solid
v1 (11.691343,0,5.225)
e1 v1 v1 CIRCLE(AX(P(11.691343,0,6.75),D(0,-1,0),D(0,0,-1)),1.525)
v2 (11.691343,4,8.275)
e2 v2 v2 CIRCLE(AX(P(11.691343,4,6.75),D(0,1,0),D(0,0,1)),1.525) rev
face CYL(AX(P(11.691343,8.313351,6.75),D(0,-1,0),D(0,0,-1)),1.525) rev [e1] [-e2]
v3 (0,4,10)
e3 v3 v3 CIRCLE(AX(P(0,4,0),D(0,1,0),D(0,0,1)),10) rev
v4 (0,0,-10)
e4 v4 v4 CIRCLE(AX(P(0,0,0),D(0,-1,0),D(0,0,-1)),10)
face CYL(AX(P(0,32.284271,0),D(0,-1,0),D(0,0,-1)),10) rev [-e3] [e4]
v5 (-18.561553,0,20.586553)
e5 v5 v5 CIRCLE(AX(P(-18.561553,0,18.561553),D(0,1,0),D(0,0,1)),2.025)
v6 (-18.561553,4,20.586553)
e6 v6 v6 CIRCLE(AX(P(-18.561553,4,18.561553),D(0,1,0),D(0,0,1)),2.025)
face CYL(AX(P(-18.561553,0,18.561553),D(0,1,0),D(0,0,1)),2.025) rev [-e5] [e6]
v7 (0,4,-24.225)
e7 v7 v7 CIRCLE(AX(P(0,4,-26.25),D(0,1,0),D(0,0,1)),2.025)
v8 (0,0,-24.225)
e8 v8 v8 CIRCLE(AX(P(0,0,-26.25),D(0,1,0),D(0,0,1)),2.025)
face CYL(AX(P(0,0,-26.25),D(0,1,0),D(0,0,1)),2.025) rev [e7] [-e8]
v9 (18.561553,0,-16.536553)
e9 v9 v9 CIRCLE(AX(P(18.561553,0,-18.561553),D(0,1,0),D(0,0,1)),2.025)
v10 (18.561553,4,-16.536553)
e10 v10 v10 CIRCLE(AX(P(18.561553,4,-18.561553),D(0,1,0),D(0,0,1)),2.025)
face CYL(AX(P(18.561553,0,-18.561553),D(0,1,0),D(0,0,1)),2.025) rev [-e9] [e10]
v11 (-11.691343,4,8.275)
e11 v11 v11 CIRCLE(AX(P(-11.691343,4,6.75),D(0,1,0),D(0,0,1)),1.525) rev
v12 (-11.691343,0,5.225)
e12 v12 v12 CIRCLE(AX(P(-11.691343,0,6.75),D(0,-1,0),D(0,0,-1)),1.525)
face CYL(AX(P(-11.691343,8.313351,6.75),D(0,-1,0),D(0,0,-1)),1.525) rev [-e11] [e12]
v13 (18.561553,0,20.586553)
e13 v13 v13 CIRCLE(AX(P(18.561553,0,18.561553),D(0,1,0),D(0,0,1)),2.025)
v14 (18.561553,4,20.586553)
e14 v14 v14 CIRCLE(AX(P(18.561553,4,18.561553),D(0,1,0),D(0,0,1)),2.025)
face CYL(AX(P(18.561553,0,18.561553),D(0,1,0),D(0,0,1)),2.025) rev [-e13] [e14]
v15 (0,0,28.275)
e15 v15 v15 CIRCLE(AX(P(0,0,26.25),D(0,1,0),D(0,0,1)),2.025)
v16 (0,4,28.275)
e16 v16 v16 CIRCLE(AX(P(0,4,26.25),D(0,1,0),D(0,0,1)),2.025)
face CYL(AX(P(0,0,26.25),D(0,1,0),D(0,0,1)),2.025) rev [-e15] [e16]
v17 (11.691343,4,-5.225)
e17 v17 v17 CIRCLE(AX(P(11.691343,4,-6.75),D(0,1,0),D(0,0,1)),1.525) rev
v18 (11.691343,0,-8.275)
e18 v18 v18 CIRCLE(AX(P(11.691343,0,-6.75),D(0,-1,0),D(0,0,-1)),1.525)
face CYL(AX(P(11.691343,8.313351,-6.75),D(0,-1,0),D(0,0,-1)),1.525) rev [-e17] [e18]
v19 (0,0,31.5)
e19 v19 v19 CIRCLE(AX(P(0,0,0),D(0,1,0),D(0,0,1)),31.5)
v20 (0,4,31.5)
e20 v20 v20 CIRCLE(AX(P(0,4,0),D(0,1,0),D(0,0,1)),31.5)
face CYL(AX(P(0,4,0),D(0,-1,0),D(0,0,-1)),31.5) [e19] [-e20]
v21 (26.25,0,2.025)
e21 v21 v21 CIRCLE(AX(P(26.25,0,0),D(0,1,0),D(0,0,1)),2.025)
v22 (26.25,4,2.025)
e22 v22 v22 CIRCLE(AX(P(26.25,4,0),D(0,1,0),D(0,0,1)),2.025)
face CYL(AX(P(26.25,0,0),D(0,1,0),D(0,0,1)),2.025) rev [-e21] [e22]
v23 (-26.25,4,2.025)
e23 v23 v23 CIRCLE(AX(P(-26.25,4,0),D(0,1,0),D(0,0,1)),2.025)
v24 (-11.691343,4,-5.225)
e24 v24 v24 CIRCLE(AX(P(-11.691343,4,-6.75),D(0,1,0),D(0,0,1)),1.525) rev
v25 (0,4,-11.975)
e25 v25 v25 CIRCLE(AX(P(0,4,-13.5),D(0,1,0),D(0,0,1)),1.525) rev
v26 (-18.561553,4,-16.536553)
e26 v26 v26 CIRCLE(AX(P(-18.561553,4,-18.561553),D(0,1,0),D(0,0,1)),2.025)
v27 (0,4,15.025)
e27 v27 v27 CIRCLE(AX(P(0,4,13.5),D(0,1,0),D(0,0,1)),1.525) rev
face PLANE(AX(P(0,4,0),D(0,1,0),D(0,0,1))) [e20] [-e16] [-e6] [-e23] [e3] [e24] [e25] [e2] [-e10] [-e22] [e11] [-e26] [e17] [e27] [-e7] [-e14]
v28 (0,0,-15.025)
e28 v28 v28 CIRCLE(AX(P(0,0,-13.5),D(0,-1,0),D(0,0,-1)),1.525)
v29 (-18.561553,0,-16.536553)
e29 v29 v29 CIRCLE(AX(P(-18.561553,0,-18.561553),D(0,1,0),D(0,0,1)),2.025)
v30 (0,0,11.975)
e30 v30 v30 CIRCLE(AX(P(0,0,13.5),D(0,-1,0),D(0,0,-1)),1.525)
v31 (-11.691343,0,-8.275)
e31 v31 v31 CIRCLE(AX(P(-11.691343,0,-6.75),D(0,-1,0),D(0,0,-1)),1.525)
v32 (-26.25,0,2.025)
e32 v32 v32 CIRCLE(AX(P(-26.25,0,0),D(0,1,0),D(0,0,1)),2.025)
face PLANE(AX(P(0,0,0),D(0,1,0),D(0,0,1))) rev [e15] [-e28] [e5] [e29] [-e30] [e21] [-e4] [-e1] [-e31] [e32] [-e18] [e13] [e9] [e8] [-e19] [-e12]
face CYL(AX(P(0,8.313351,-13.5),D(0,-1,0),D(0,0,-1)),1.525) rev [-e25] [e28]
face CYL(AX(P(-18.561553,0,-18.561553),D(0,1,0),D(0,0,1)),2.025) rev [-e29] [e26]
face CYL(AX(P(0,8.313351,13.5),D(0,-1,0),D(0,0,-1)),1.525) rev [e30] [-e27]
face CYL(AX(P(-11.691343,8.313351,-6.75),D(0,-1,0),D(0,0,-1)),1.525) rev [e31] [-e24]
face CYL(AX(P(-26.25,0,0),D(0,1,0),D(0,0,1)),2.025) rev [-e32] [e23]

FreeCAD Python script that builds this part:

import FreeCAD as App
import Part
import Sketcher

doc = App.newDocument("Part")
params = doc.addObject("Spreadsheet::Sheet", "Params")
for row, (alias, value) in enumerate([
    ("sketch1_diameter", "63 mm"),
    ("sketch1_diameter2", "45 mm"),
    ("pad1_length", "4 mm"),
    ("sketch2_diameter", "4.05 mm"),
    ("sketch3_diameter", "45 mm"),
    ("pad2_length", "4 mm"),
    ("sketch4_diameter", "3.05 mm"),
    ("pocket2_length", "4 mm"),
    ("sketch5_diameter", "20 mm"),
    ("pocket3_length", "4 mm"),
], start=1):
    params.set(f"A{row}", alias)
    params.set(f"B{row}", "=" + value)
    params.setAlias(f"B{row}", alias)

body = doc.addObject("PartDesign::Body", "Body")

sketch1 = doc.addObject("Sketcher::SketchObject", "Sketch")
body.addObject(sketch1)
sketch1.AttachmentSupport = (doc.XZ_Plane, [""])
sketch1.MapMode = "FlatFace"
sketch1.addGeometry([
    Part.Circle(App.Vector(0, 0, 0), App.Vector(0, 0, 1), 32),
    Part.Circle(App.Vector(0, 0, 0), App.Vector(0, 0, 1), 22),
], False)
sketch1.addConstraint([
    Sketcher.Constraint("Coincident", 0, 3, -1, 1),
    Sketcher.Constraint("Coincident", 1, 3, -1, 1),
    Sketcher.Constraint("Diameter", 0, 63.0),
    Sketcher.Constraint("Diameter", 1, 45.0),
])
sketch1.setExpression("Constraints[2]", "Params.sketch1_diameter")
sketch1.setExpression("Constraints[3]", "Params.sketch1_diameter2")
pad1 = doc.addObject("PartDesign::Pad", "Pad")
body.addObject(pad1)
pad1.Profile = sketch1
pad1.setExpression("Length", "Params.pad1_length")
pad1.Reversed = True

sketch2 = doc.addObject("Sketcher::SketchObject", "Sketch001")
body.addObject(sketch2)
sketch2.AttachmentSupport = (doc.XZ_Plane, [""])
sketch2.MapMode = "FlatFace"
sketch2.AttachmentOffset = App.Placement(App.Vector(0, 0, -4), App.Rotation())
sketch2.addGeometry([
    Part.Circle(App.Vector(0, -26.2, 0), App.Vector(0, 0, 1), 2),
    Part.Circle(App.Vector(18.6, -18.6, 0), App.Vector(0, 0, 1), 2),
    Part.Circle(App.Vector(26.2, 0, 0), App.Vector(0, 0, 1), 2),
    Part.Circle(App.Vector(18.6, 18.6, 0), App.Vector(0, 0, 1), 2),
    Part.Circle(App.Vector(0, 26.2, 0), App.Vector(0, 0, 1), 2),
    Part.Circle(App.Vector(-18.6, 18.6, 0), App.Vector(0, 0, 1), 2),
    Part.Circle(App.Vector(-26.2, 0, 0), App.Vector(0, 0, 1), 2),
    Part.Circle(App.Vector(-18.6, -18.6, 0), App.Vector(0, 0, 1), 2),
], False)
sketch2.addConstraint([
    Sketcher.Constraint("Equal", 0, 1),
    Sketcher.Constraint("Equal", 1, 2),
    Sketcher.Constraint("Equal", 2, 3),
    Sketcher.Constraint("Equal", 3, 4),
    Sketcher.Constraint("Equal", 4, 5),
    Sketcher.Constraint("Equal", 5, 6),
    Sketcher.Constraint("Equal", 6, 7),
    Sketcher.Constraint("Symmetric", 0, 3, 4, 3, -1, 1),
    Sketcher.Constraint("Symmetric", 1, 3, 5, 3, -1, 1),
    Sketcher.Constraint("Symmetric", 2, 3, 6, 3, -1, 1),
    Sketcher.Constraint("Symmetric", 3, 3, 7, 3, -1, 1),
    Sketcher.Constraint("Symmetric", 3, 3, 5, 3, -2),
    Sketcher.Constraint("PointOnObject", 0, 3, -2),
    Sketcher.Constraint("PointOnObject", 2, 3, -1),
    Sketcher.Constraint("Diameter", 0, 4.05),
    Sketcher.Constraint("DistanceY", 0, 3, 4, 3, 52.5),
    Sketcher.Constraint("DistanceX", -1, 1, 2, 3, 26.25),
    Sketcher.Constraint("DistanceX", -1, 1, 1, 3, 18.561553),
    Sketcher.Constraint("DistanceY", 1, 3, -1, 1, 18.561553),
])
sketch2.setExpression("Constraints[14]", "Params.sketch2_diameter")
pocket1 = doc.addObject("PartDesign::Pocket", "Pocket")
body.addObject(pocket1)
pocket1.Profile = sketch2
pocket1.Type = "ThroughAll"
pocket1.Midplane = True

sketch3 = doc.addObject("Sketcher::SketchObject", "Sketch002")
body.addObject(sketch3)
sketch3.AttachmentSupport = (doc.XZ_Plane, [""])
sketch3.MapMode = "FlatFace"
sketch3.AttachmentOffset = App.Placement(App.Vector(0, 0, -4), App.Rotation())
sketch3.addGeometry(Part.Circle(App.Vector(0, 0, 0), App.Vector(0, 0, 1), 22), False)
sketch3.addConstraint([
    Sketcher.Constraint("Coincident", 0, 3, -1, 1),
    Sketcher.Constraint("Diameter", 0, 45.0),
])
sketch3.setExpression("Constraints[1]", "Params.sketch3_diameter")
pad2 = doc.addObject("PartDesign::Pad", "Pad001")
body.addObject(pad2)
pad2.Profile = sketch3
pad2.setExpression("Length", "Params.pad2_length")

sketch4 = doc.addObject("Sketcher::SketchObject", "Sketch003")
body.addObject(sketch4)
sketch4.AttachmentSupport = (doc.XZ_Plane, [""])
sketch4.MapMode = "FlatFace"
sketch4.addGeometry([
    Part.Circle(App.Vector(0, 13.5, 0), App.Vector(0, 0, 1), 1.5),
    Part.Circle(App.Vector(11.7, 6.8, 0), App.Vector(0, 0, 1), 1.5),
    Part.Circle(App.Vector(11.7, -6.8, 0), App.Vector(0, 0, 1), 1.5),
    Part.Circle(App.Vector(0, -13.5, 0), App.Vector(0, 0, 1), 1.5),
    Part.Circle(App.Vector(-11.7, -6.8, 0), App.Vector(0, 0, 1), 1.5),
    Part.Circle(App.Vector(-11.7, 6.8, 0), App.Vector(0, 0, 1), 1.5),
], False)
sketch4.addConstraint([
    Sketcher.Constraint("Equal", 0, 1),
    Sketcher.Constraint("Equal", 1, 2),
    Sketcher.Constraint("Equal", 2, 3),
    Sketcher.Constraint("Equal", 3, 4),
    Sketcher.Constraint("Equal", 4, 5),
    Sketcher.Constraint("Symmetric", 0, 3, 3, 3, -1, 1),
    Sketcher.Constraint("Symmetric", 1, 3, 4, 3, -1, 1),
    Sketcher.Constraint("Symmetric", 2, 3, 5, 3, -1, 1),
    Sketcher.Constraint("Symmetric", 2, 3, 4, 3, -2),
    Sketcher.Constraint("PointOnObject", 0, 3, -2),
    Sketcher.Constraint("Diameter", 0, 3.05),
    Sketcher.Constraint("DistanceY", 3, 3, 0, 3, 27.0),
    Sketcher.Constraint("DistanceY", 2, 3, 1, 3, 13.5),
    Sketcher.Constraint("DistanceX", -1, 1, 1, 3, 11.691343),
])
sketch4.setExpression("Constraints[10]", "Params.sketch4_diameter")
pocket2 = doc.addObject("PartDesign::Pocket", "Pocket001")
body.addObject(pocket2)
pocket2.Profile = sketch4
pocket2.setExpression("Length", "Params.pocket2_length")

sketch5 = doc.addObject("Sketcher::SketchObject", "Sketch004")
body.addObject(sketch5)
sketch5.AttachmentSupport = (doc.XZ_Plane, [""])
sketch5.MapMode = "FlatFace"
sketch5.addGeometry(Part.Circle(App.Vector(0, 0, 0), App.Vector(0, 0, 1), 10), False)
sketch5.addConstraint([
    Sketcher.Constraint("Coincident", 0, 3, -1, 1),
    Sketcher.Constraint("Diameter", 0, 20.0),
])
sketch5.setExpression("Constraints[1]", "Params.sketch5_diameter")
pocket3 = doc.addObject("PartDesign::Pocket", "Pocket002")
body.addObject(pocket3)
pocket3.Profile = sketch5
pocket3.setExpression("Length", "Params.pocket3_length")

doc.recompute()
